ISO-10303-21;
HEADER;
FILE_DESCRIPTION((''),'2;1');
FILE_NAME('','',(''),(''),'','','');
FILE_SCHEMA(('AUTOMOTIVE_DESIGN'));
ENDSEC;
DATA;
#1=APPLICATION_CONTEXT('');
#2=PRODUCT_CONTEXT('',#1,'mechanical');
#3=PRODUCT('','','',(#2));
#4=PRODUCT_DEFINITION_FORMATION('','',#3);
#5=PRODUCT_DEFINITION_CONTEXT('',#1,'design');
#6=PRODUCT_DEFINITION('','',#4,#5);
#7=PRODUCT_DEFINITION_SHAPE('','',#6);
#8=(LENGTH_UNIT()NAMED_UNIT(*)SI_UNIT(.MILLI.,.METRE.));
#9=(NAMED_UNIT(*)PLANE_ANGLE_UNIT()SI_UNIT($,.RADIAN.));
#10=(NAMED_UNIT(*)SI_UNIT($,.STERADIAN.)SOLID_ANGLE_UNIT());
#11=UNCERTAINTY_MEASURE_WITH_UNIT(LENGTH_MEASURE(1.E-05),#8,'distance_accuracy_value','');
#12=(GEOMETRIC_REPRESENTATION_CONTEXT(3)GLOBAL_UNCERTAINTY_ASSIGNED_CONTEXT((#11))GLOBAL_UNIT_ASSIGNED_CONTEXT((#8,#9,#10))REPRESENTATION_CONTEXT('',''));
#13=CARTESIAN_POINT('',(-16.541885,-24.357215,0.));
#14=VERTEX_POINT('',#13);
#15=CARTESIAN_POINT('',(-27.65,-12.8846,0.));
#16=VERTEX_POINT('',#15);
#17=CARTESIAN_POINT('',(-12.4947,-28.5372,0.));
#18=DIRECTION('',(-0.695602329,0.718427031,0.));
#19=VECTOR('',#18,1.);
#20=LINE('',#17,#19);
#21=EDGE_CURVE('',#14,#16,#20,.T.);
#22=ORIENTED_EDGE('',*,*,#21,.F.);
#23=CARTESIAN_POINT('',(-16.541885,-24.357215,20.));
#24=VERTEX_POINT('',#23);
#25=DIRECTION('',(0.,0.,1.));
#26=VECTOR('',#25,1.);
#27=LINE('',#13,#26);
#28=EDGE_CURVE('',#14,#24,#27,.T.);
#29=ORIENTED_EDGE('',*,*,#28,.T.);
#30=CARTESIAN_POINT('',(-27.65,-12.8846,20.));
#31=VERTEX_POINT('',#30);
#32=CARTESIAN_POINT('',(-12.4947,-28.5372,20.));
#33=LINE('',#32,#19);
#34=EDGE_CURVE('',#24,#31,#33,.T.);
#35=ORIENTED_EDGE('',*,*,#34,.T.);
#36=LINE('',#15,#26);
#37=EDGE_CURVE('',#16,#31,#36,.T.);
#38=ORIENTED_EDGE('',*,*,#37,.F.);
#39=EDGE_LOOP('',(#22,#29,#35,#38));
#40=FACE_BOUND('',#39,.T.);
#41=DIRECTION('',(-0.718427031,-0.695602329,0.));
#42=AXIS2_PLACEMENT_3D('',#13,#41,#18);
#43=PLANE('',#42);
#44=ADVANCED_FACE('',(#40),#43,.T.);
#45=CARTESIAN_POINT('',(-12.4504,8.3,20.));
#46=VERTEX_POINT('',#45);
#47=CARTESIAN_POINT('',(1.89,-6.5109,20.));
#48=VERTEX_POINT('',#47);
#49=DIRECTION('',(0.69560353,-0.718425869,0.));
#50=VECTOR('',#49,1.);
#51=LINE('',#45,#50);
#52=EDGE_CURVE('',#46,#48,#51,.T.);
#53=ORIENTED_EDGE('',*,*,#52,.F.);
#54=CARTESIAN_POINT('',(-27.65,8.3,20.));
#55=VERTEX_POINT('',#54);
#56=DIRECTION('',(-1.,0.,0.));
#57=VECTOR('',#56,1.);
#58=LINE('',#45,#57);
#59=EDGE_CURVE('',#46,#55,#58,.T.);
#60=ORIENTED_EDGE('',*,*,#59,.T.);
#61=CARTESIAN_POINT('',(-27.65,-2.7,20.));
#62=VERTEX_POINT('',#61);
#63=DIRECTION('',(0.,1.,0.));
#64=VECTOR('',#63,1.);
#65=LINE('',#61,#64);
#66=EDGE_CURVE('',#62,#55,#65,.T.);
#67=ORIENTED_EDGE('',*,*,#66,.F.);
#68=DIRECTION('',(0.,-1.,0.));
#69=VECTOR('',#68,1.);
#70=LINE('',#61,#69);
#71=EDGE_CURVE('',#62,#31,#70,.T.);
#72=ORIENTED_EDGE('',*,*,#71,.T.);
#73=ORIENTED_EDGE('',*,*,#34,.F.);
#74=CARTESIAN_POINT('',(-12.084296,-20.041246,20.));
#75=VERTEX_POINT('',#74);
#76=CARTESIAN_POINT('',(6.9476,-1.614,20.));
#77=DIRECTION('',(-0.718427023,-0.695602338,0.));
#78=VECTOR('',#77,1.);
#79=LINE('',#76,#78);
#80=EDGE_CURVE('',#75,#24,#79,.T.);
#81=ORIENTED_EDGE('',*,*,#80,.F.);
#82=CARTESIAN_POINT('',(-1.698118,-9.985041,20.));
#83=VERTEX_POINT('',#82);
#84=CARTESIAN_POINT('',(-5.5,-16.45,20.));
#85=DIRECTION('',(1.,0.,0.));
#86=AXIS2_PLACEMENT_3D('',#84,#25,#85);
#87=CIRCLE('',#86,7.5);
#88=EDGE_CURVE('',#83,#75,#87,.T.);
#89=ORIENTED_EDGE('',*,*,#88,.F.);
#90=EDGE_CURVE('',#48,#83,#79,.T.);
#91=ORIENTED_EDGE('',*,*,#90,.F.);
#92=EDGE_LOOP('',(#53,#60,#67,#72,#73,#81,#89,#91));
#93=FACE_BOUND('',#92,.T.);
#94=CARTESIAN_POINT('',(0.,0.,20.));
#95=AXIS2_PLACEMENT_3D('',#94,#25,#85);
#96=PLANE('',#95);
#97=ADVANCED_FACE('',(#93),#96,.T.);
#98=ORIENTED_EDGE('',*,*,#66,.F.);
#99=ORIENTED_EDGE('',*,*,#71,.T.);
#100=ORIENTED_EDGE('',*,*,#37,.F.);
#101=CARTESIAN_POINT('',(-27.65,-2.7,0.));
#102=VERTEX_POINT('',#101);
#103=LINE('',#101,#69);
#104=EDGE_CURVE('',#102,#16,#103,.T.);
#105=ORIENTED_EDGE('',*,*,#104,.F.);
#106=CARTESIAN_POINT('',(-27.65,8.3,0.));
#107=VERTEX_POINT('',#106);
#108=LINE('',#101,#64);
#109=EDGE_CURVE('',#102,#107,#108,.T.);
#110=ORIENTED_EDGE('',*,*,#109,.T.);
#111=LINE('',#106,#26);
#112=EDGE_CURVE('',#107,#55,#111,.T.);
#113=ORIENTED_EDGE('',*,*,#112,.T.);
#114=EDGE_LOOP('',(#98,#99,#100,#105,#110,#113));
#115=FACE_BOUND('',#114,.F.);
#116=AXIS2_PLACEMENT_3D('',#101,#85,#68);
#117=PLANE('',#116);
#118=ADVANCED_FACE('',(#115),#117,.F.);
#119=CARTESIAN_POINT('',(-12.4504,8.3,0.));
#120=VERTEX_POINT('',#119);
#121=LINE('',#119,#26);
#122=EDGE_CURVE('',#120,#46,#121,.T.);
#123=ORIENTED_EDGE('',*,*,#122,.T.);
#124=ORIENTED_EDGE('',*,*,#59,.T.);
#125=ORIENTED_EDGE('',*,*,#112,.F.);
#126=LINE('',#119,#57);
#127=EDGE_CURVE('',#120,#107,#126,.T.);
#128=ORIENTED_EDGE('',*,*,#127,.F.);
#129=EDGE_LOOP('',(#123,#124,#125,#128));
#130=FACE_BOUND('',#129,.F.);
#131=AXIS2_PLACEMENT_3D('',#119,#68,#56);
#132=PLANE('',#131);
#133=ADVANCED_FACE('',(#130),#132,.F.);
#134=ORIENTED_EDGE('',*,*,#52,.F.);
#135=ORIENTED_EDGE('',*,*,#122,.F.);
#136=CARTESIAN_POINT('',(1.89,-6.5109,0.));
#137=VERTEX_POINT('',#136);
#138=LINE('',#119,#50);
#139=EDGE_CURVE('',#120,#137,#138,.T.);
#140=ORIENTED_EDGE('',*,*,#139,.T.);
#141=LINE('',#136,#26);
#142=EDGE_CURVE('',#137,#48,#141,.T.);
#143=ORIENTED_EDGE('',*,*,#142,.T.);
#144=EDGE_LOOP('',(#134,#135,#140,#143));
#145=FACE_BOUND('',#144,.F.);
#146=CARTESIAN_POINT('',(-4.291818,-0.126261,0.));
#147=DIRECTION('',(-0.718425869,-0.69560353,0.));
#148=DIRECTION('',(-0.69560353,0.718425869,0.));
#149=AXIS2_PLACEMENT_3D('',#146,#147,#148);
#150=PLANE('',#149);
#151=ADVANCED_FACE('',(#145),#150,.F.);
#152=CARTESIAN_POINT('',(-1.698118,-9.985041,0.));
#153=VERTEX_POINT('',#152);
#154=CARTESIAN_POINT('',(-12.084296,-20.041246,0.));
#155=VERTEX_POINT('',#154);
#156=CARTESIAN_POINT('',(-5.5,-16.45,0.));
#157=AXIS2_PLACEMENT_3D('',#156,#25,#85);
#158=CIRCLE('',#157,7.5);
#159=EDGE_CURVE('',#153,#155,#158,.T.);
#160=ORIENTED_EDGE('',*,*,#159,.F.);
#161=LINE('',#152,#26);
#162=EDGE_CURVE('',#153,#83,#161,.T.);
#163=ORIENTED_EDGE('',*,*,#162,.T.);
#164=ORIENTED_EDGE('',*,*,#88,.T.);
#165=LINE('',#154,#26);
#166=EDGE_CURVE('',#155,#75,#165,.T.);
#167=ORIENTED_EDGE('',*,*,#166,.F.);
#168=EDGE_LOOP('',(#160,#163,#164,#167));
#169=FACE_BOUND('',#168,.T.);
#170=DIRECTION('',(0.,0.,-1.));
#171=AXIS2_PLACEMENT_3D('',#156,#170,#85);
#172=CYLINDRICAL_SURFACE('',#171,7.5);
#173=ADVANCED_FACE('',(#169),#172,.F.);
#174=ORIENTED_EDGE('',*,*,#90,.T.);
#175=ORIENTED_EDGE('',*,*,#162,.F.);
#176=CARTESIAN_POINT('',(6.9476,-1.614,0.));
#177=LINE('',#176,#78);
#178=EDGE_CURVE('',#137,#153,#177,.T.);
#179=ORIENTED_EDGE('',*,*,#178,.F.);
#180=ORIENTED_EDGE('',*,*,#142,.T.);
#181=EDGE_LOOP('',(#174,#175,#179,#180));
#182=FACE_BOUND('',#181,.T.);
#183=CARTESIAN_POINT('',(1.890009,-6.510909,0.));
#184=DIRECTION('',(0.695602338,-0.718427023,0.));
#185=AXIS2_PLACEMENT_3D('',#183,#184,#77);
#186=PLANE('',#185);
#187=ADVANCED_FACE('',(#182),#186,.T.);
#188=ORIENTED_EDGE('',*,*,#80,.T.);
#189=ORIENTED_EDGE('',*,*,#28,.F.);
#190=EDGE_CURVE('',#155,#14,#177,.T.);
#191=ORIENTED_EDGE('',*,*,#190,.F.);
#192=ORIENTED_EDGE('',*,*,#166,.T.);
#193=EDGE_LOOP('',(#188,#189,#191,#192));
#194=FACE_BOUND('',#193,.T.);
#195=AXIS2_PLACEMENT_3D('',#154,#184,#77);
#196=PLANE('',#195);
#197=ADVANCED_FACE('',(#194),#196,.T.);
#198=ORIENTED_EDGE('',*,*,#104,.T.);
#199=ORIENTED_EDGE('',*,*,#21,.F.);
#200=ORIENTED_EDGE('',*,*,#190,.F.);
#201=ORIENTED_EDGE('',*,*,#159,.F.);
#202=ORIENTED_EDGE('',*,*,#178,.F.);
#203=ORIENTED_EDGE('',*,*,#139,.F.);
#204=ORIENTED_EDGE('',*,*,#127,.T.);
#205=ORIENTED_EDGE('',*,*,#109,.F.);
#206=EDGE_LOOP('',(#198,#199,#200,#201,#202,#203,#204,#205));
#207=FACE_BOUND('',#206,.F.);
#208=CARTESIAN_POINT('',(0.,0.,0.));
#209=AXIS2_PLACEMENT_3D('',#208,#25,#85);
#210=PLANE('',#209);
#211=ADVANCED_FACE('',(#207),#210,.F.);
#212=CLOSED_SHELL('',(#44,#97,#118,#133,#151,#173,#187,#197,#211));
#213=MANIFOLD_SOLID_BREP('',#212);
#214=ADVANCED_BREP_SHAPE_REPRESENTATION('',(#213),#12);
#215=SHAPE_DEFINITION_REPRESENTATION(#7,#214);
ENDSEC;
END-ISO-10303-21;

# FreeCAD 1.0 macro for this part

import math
import FreeCAD as App
import Part
import Sketcher
from FreeCAD import Vector
Q = App.Units.Quantity

doc = App.newDocument("Part")
body = doc.addObject("PartDesign::Body", "Body")

# Sketch on XY plane
sketch1 = body.newObject("Sketcher::SketchObject", "Sketch")
sketch1.AttachmentSupport = (doc.getObject("XY_Plane"), [""])
sketch1.MapMode = "FlatFace"
sketch1.addGeometry([
    Part.LineSegment(Vector(-27.6, -2.7, 0), Vector(-27.6, -12.9, 0)),  # 0
    Part.LineSegment(Vector(-27.7, -12.9, 0), Vector(-16.5, -24.4, 0)),  # 1
    Part.LineSegment(Vector(-16.5, -24.4, 0), Vector(-12.1, -20, 0)),  # 2
    Part.ArcOfCircle(Part.Circle(Vector(-5.5, -16.4, 0), Vector(0, 0, 1), 7.5), math.radians(60), math.radians(209)),  # 3
    Part.LineSegment(Vector(-1.7, -10, 0), Vector(1.9, -6.5, 0)),  # 4
    Part.LineSegment(Vector(1.9, -6.5, 0), Vector(-12.5, 8.3, 0)),  # 5
    Part.LineSegment(Vector(-12.5, 8.3, 0), Vector(-27.6, 8.3, 0)),  # 6
    Part.LineSegment(Vector(-27.6, 8.3, 0), Vector(-27.6, -2.7, 0)),  # 7
], False)
sketch1.addConstraint([
    Sketcher.Constraint("Coincident", 0, 2, 1, 1),
    Sketcher.Constraint("Coincident", 1, 2, 2, 1),
    Sketcher.Constraint("Coincident", 2, 2, 3, 2),
    Sketcher.Constraint("Coincident", 3, 1, 4, 1),
    Sketcher.Constraint("Coincident", 4, 2, 5, 1),
    Sketcher.Constraint("Coincident", 5, 2, 6, 1),
    Sketcher.Constraint("Coincident", 6, 2, 7, 1),
    Sketcher.Constraint("Coincident", 7, 2, 0, 1),
    Sketcher.Constraint("Vertical", 0),
    Sketcher.Constraint("Horizontal", 6),
    Sketcher.Constraint("Vertical", 7),
    Sketcher.Constraint("Perpendicular", 1, 2),
    Sketcher.Constraint("Parallel", 2, 4),
    Sketcher.Constraint("Perpendicular", 4, 5),
    Sketcher.Constraint("DistanceY", 7, 2, 7, 1, Q("11 mm")),
    Sketcher.Constraint("Radius", 3, Q("7.5 mm")),
    Sketcher.Constraint("DistanceX", 3, 3, -1, 1, Q("5.5 mm")),
    Sketcher.Constraint("DistanceY", -1, 1, 5, 2, Q("8.3 mm")),
    Sketcher.Constraint("DistanceY", 3, 3, -1, 1, Q("16.45 mm")),
    Sketcher.Constraint("DistanceX", 0, 2, -1, 1, Q("27.65 mm")),
    Sketcher.Constraint("DistanceX", -1, 1, 4, 2, Q("1.89 mm")),
    Sketcher.Constraint("Distance", 1, Q("15.969 mm")),
    Sketcher.Constraint("DistanceX", 6, 2, 6, 1, Q("15.1996 mm")),
    Sketcher.Constraint("DistanceY", 0, 2, 0, 1, Q("10.1846 mm")),
    Sketcher.Constraint("DistanceX", 1, 2, -1, 1, Q("16.542 mm")),
])
pad1 = body.newObject("PartDesign::Pad", "Pad")
pad1.Profile = sketch1
pad1.Length = 20

doc.recompute()
